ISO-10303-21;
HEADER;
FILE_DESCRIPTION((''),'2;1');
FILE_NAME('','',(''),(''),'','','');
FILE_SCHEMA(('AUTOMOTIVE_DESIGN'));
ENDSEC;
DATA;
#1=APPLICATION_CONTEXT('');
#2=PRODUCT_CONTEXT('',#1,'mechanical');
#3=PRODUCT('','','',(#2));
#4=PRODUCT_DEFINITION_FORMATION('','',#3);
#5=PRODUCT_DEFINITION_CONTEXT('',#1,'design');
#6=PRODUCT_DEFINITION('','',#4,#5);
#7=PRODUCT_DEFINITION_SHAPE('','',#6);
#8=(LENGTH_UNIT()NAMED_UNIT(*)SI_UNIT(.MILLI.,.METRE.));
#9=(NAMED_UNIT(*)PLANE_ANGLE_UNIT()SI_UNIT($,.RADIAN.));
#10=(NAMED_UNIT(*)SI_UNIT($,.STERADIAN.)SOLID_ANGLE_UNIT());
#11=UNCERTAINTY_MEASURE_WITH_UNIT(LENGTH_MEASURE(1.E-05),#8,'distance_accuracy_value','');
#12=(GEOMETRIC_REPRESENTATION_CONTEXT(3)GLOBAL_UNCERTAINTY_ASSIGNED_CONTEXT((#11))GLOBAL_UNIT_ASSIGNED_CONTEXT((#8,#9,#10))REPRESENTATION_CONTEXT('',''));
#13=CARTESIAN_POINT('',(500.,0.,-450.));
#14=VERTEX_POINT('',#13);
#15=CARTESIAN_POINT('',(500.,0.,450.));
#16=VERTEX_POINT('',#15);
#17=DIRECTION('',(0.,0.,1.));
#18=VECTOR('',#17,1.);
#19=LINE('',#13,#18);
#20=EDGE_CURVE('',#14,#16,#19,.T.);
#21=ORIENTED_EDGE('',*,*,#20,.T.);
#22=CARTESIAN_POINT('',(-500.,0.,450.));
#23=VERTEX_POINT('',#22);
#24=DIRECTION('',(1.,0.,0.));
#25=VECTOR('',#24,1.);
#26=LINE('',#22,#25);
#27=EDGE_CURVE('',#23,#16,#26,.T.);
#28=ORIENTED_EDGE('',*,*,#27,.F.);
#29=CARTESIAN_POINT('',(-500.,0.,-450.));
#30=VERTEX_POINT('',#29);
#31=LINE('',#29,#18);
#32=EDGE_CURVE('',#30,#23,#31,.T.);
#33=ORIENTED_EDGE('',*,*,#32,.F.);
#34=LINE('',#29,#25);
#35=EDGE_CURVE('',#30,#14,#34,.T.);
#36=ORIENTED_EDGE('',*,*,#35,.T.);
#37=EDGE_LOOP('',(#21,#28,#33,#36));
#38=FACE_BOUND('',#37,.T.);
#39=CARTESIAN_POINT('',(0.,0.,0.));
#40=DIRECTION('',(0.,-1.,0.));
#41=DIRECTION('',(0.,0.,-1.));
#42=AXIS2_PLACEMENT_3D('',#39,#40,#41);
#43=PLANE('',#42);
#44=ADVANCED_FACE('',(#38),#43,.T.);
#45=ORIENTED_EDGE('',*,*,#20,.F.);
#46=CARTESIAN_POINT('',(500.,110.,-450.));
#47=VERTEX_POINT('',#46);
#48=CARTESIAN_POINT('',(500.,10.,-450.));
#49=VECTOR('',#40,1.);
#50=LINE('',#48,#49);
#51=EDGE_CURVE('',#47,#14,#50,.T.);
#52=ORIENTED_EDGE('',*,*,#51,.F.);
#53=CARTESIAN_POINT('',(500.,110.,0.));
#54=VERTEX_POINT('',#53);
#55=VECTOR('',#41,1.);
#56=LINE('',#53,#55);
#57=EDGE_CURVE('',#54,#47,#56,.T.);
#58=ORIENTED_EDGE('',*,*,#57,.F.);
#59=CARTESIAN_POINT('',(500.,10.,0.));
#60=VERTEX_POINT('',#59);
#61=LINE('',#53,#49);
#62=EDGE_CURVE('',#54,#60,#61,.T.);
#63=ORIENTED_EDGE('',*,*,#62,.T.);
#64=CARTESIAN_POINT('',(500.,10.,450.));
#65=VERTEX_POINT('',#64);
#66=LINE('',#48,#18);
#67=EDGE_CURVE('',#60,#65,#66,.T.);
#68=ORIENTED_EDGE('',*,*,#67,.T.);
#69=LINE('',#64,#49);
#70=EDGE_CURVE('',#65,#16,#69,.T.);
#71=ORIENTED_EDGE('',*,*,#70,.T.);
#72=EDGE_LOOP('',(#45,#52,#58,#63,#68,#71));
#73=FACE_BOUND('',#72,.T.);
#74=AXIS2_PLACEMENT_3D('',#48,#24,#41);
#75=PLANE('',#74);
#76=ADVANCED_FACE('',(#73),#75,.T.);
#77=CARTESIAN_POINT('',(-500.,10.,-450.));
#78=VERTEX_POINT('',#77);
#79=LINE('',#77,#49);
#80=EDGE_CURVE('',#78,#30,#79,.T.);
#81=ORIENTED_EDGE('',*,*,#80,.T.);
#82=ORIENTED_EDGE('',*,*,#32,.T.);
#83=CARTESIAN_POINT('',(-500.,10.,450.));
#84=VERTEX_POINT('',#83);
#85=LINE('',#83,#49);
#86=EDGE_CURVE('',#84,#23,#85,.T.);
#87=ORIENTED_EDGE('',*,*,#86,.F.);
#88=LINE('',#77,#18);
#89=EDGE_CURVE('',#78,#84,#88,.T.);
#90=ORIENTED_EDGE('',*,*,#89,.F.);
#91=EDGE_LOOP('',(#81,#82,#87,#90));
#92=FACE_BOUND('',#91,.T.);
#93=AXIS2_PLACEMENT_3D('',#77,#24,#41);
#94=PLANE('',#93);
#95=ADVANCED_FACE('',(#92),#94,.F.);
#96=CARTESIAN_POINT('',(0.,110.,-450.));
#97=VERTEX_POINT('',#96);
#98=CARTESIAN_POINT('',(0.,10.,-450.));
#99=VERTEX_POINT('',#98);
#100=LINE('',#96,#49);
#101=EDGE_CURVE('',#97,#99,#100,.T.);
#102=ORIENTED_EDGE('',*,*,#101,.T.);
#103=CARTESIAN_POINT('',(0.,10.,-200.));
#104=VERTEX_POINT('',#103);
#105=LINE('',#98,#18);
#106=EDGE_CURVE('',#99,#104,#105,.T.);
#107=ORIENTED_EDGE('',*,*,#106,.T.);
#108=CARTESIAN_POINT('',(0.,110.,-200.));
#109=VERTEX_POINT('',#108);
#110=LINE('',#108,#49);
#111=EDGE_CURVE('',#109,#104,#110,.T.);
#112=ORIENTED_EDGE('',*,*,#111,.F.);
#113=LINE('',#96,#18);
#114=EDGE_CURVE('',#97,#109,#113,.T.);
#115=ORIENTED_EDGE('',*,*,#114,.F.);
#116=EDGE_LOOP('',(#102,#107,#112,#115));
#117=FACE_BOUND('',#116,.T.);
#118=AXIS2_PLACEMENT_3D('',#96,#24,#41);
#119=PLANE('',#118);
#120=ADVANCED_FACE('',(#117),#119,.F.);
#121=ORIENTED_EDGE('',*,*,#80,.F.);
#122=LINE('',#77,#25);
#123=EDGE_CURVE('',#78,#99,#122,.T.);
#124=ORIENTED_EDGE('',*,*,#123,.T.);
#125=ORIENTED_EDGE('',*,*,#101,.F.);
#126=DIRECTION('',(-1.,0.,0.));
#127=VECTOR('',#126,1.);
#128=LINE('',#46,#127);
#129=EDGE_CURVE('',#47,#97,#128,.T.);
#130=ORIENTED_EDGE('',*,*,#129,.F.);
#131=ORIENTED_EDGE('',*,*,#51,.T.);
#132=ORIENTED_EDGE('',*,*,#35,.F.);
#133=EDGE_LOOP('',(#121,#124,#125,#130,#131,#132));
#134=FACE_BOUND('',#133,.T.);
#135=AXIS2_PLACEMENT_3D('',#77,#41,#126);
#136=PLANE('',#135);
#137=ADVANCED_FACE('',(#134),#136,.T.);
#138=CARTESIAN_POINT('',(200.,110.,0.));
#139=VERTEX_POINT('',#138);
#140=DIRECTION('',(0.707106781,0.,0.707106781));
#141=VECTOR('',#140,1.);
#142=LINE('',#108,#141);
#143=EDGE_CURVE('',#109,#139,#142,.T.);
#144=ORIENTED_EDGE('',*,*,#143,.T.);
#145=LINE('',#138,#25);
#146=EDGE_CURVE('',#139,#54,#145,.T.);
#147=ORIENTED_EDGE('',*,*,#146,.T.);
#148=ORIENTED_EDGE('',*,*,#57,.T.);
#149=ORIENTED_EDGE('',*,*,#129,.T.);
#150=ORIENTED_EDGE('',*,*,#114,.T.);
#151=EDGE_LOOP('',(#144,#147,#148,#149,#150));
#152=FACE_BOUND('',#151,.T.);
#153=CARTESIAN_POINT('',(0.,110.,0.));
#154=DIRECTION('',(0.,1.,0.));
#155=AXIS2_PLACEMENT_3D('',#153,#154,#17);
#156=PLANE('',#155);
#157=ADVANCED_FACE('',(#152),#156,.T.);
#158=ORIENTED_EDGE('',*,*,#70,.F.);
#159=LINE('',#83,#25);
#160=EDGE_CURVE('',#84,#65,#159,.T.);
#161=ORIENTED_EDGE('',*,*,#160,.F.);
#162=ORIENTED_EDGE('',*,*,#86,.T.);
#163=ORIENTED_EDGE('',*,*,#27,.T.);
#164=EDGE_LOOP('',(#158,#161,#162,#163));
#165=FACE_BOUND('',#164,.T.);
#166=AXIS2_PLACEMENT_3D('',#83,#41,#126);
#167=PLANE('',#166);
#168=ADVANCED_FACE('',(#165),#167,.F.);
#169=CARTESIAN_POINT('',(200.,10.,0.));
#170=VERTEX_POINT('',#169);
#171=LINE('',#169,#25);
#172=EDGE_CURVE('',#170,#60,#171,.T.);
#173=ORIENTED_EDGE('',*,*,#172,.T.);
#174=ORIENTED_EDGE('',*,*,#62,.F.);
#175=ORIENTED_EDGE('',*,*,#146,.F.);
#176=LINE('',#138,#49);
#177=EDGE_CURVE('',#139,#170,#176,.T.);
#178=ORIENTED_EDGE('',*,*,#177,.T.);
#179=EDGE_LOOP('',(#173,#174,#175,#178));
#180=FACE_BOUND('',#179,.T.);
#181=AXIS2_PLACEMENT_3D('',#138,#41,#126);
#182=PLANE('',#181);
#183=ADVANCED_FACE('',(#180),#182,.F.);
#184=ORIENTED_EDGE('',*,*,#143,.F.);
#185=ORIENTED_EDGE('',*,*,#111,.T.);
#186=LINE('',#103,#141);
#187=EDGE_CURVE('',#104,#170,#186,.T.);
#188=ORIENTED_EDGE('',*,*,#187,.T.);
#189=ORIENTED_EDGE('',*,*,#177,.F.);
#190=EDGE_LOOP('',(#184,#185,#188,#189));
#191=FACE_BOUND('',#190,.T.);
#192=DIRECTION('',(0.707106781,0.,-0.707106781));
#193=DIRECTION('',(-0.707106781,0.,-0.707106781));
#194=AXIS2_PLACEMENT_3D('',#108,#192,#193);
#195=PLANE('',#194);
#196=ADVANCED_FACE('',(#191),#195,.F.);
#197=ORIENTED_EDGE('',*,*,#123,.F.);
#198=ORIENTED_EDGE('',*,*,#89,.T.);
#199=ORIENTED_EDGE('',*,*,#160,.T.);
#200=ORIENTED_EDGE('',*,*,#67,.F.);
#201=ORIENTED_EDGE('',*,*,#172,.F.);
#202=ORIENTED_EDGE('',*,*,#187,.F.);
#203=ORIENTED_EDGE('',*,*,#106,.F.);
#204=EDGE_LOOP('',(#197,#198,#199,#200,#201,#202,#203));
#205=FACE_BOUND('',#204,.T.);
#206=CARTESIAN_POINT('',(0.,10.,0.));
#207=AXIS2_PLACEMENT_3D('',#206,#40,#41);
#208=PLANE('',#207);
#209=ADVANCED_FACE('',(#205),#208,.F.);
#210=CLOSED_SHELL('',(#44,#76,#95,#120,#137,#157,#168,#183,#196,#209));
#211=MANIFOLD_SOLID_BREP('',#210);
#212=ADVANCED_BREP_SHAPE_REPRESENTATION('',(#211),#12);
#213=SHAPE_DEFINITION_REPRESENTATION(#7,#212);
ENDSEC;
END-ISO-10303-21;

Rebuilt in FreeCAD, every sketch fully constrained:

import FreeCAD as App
import Part
import Sketcher

V = App.Vector
Q = App.Units.Quantity


def add_polygon(sketch, points):
    """Adds a closed chain of lines whose ends are joined by coincident constraints."""
    first, n = sketch.GeometryCount, len(points)
    for a, b in zip(points, points[1:] + points[:1]):
        sketch.addGeometry(Part.LineSegment(App.Vector(*a, 0), App.Vector(*b, 0)), False)
    for i in range(n):
        sketch.addConstraint(Sketcher.Constraint("Coincident", first + i, 2, first + (i + 1) % n, 1))

doc = App.newDocument("Part")
body = doc.addObject("PartDesign::Body", "Body")

sketch1 = doc.addObject("Sketcher::SketchObject", "Sketch")
body.addObject(sketch1)
sketch1.AttachmentSupport = (doc.XZ_Plane, [""])
sketch1.MapMode = "FlatFace"
add_polygon(sketch1, [(-500, -450), (-500, 450), (500, 450), (500, -450)])
sketch1.addConstraint([
    Sketcher.Constraint("Vertical", 0),
    Sketcher.Constraint("Horizontal", 1),
    Sketcher.Constraint("Vertical", 2),
    Sketcher.Constraint("Horizontal", 3),
    Sketcher.Constraint("Symmetric", 0, 2, 2, 2, -1, 1),
    Sketcher.Constraint("DistanceX", 1, 1, 1, 2, Q("1000 mm")),
    Sketcher.Constraint("DistanceY", 0, 1, 0, 2, Q("900 mm")),
])
pad1 = doc.addObject("PartDesign::Pad", "Pad")
body.addObject(pad1)
pad1.Profile = sketch1
pad1.Length = 10
pad1.Reversed = True

sketch2 = doc.addObject("Sketcher::SketchObject", "Sketch001")
body.addObject(sketch2)
sketch2.AttachmentSupport = (doc.XZ_Plane, [""])
sketch2.MapMode = "FlatFace"
sketch2.AttachmentOffset = App.Placement(V(0, 0, -10), App.Rotation())
add_polygon(sketch2, [(0, -450), (0, -200), (200, 0), (500, 0), (500, -450)])
sketch2.addConstraint([
    Sketcher.Constraint("Vertical", 0),
    Sketcher.Constraint("Horizontal", 2),
    Sketcher.Constraint("Vertical", 3),
    Sketcher.Constraint("Horizontal", 4),
    Sketcher.Constraint("PointOnObject", 0, 2, -2),
    Sketcher.Constraint("PointOnObject", 1, 2, -1),
    Sketcher.Constraint("DistanceX", 2, 1, 2, 2, Q("300 mm")),
    Sketcher.Constraint("DistanceX", 4, 2, 4, 1, Q("500 mm")),
    Sketcher.Constraint("DistanceY", 0, 1, 0, 2, Q("250 mm")),
    Sketcher.Constraint("DistanceY", 3, 2, 3, 1, Q("450 mm")),
])
pad2 = doc.addObject("PartDesign::Pad", "Pad001")
body.addObject(pad2)
pad2.Profile = sketch2
pad2.Length = 100
pad2.Reversed = True

doc.recompute()
